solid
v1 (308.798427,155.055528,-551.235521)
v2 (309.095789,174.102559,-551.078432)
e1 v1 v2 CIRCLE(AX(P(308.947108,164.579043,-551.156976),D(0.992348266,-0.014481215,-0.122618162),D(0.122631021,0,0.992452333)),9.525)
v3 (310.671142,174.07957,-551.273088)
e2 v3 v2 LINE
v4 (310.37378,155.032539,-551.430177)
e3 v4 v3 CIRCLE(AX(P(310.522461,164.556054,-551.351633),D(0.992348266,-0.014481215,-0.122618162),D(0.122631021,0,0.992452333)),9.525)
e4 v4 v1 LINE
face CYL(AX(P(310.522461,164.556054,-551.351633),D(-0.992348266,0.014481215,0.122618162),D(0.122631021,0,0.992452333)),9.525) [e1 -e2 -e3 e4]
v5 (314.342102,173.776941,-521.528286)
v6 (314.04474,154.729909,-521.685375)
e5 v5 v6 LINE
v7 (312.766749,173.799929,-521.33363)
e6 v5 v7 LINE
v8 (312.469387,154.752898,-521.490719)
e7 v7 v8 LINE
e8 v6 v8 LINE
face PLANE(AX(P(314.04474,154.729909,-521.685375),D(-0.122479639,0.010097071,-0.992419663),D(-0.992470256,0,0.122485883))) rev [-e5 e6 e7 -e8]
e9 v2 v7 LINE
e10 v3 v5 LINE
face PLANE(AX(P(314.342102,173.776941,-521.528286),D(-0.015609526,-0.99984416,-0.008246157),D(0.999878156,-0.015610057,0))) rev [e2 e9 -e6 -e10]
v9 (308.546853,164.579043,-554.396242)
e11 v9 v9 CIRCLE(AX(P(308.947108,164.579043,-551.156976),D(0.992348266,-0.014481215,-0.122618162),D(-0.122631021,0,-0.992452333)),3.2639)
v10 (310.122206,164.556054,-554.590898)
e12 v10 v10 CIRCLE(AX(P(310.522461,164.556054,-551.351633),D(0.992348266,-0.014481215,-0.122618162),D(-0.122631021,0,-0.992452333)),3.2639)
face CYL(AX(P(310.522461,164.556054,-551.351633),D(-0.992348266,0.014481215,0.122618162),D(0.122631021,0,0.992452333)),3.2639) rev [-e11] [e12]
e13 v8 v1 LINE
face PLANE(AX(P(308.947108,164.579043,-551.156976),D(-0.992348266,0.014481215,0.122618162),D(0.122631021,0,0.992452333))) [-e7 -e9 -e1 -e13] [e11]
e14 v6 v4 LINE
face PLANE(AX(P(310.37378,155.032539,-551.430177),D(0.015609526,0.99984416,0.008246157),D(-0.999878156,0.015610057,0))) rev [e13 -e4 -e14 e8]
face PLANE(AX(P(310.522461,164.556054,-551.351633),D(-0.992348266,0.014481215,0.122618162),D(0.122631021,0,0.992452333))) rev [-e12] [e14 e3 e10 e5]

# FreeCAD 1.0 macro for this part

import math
import FreeCAD as App
import Part
import Sketcher

V = App.Vector
Q = App.Units.Quantity

doc = App.newDocument("Part")
body = doc.addObject("PartDesign::Body", "Body")

sketch1 = body.newObject("Sketcher::SketchObject", "Sketch")
sketch1.Placement = App.Placement(V(368.936904, -5.38385, -45.587186), App.Rotation(V(-0.122605109, 0.001789161, -0.992453921), V(0.014591322, 0.999893541, 0), V(0.992348266, -0.014481215, -0.122618162), "ZXY"))
sketch1.addGeometry(Part.LineSegment(V(509.3, 178.6, 0), V(479.4, 178.3, 0)), False)
sketch1.addGeometry(Part.LineSegment(V(479.4, 178.3, 0), V(479.5, 159.3, 0)), False)
sketch1.addGeometry(Part.LineSegment(V(479.5, 159.3, 0), V(509.5, 159.5, 0)), False)
sketch1.addGeometry(Part.ArcOfCircle(Part.Circle(V(509.4, 169.1, 0), V(0, 0, 1), 9.5), math.radians(-90), math.radians(90)), False)
sketch1.addGeometry(Part.Circle(V(509.4, 169.1, 0), V(0, 0, 1), 3.3), False)
sketch1.addConstraint(Sketcher.Constraint("Coincident", 0, 2, 1, 1))
sketch1.addConstraint(Sketcher.Constraint("Coincident", 1, 2, 2, 1))
sketch1.addConstraint(Sketcher.Constraint("Tangent", 2, 2, 3, 1))
sketch1.addConstraint(Sketcher.Constraint("Tangent", 3, 2, 0, 1))
sketch1.addConstraint(Sketcher.Constraint("Coincident", 4, 3, 3, 3))
sketch1.addConstraint(Sketcher.Constraint("Perpendicular", 0, 1))
sketch1.addConstraint(Sketcher.Constraint("Perpendicular", 1, 2))
sketch1.addConstraint(Sketcher.Constraint("Diameter", 4, Q("0.257 in")))
sketch1.addConstraint(Sketcher.Constraint("Radius", 3, Q("0.375 in")))
sketch1.addConstraint(Sketcher.Constraint("Distance", 0, Q("1.18 in")))
sketch1.addConstraint(Sketcher.Constraint("DistanceY", -1, 1, 3, 3, 169.069469))
sketch1.addConstraint(Sketcher.Constraint("DistanceX", -1, 1, 0, 2, 479.36376))
sketch1.addConstraint(Sketcher.Constraint("DistanceX", -1, 1, 2, 2, 509.493009))
pad1 = body.newObject("PartDesign::Pad", "Pad")
pad1.Profile = sketch1
pad1.Length = Q("0.0625 in")

doc.recompute()
